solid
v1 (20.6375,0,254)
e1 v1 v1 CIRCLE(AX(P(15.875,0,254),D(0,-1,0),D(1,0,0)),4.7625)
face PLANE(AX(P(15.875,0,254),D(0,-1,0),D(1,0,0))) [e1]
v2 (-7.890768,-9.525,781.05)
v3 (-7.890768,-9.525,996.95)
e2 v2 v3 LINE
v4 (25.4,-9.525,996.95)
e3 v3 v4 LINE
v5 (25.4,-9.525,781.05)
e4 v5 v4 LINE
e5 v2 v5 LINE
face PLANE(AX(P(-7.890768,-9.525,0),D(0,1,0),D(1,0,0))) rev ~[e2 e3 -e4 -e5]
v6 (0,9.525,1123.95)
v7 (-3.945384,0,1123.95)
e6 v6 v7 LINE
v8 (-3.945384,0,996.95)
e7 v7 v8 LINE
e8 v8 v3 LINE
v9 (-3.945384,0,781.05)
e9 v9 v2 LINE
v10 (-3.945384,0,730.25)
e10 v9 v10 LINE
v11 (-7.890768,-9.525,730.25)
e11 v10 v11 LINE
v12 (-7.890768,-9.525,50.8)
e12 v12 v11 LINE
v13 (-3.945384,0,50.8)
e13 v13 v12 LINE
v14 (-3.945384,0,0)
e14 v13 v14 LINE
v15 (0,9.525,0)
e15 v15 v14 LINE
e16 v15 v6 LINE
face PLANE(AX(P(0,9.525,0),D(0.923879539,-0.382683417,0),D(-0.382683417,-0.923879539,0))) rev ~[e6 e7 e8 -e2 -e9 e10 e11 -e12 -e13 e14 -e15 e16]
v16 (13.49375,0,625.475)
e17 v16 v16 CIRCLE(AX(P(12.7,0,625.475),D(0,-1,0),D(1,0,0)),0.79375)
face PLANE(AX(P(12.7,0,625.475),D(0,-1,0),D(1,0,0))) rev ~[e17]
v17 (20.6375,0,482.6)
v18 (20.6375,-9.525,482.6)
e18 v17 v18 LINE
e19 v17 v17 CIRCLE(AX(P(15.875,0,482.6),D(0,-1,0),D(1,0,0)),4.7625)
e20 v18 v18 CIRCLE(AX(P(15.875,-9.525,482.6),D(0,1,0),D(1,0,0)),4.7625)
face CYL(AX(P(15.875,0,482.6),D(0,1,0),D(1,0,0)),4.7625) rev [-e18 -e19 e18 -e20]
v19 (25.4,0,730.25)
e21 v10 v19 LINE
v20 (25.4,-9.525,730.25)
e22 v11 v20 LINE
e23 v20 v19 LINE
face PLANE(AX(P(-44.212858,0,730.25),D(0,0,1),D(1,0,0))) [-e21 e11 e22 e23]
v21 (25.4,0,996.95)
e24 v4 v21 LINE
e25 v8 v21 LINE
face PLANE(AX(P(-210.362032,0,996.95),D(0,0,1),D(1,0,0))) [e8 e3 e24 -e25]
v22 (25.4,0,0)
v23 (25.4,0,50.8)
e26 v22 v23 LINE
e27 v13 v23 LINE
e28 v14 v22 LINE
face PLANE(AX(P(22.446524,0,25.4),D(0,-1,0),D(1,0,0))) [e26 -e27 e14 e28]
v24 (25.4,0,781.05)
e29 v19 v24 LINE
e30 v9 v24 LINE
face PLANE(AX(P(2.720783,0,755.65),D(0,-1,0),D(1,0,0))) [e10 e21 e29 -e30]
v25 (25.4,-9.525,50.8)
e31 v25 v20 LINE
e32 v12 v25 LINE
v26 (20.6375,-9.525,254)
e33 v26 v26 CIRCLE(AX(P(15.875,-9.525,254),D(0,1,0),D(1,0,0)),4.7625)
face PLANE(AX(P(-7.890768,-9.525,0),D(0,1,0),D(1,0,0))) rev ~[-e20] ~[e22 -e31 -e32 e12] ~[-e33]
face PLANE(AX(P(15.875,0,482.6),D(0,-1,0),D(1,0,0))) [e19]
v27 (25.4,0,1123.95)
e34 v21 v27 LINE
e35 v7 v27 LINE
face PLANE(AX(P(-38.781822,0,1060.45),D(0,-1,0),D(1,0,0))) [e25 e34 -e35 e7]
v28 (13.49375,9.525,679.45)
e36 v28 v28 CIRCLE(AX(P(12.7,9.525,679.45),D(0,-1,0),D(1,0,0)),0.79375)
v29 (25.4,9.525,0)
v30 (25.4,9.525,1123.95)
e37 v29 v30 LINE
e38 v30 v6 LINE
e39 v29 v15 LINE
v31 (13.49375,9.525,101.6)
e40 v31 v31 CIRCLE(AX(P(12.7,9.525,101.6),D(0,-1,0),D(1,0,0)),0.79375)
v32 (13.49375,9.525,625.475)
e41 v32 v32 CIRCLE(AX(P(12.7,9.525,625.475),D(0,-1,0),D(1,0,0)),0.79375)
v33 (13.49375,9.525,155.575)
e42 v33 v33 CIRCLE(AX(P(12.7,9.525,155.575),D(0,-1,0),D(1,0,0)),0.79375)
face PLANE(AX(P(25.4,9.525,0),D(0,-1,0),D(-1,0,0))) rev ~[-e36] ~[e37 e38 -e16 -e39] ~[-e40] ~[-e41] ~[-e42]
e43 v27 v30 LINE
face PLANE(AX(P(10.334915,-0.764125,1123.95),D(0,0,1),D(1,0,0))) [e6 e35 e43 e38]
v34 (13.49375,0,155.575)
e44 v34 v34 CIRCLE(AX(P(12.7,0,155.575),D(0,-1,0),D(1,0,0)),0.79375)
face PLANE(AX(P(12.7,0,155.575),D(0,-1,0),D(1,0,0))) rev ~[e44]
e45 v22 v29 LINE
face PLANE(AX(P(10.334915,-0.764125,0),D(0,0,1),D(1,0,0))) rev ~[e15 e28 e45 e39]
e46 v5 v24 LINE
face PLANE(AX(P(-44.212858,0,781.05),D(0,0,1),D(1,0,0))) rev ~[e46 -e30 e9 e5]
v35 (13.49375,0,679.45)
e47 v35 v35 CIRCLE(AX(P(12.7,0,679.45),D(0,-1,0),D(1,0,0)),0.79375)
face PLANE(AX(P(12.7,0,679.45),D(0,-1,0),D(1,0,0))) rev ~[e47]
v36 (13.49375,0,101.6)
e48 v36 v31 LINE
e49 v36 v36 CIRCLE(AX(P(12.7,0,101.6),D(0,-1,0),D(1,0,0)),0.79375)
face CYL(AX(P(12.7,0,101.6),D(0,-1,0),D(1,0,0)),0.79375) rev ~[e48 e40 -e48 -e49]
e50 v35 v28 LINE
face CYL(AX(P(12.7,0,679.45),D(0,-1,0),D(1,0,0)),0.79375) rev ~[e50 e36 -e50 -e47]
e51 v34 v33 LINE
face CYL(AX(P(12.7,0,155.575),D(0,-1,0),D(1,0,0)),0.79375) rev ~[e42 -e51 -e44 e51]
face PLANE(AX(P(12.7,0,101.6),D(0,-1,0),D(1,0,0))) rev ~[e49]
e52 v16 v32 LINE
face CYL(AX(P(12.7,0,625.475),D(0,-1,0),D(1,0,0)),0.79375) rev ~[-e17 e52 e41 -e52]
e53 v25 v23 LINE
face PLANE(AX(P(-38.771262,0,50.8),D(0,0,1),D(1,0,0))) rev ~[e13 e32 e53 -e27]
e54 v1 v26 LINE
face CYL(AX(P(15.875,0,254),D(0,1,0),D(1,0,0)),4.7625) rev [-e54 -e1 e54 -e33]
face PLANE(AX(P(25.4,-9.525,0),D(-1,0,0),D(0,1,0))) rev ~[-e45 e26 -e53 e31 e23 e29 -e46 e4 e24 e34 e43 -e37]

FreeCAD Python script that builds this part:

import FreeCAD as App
import Part
import Sketcher
Q = App.Units.Quantity


def add_polygon(sketch, points):
    """Adds a closed chain of lines whose ends are joined by coincident constraints."""
    first, n = sketch.GeometryCount, len(points)
    for a, b in zip(points, points[1:] + points[:1]):
        sketch.addGeometry(Part.LineSegment(App.Vector(*a, 0), App.Vector(*b, 0)), False)
    for i in range(n):
        sketch.addConstraint(Sketcher.Constraint("Coincident", first + i, 2, first + (i + 1) % n, 1))

doc = App.newDocument("Part")
body = doc.addObject("PartDesign::Body", "Body")

# Sketch on XY plane
sketch1 = body.newObject("Sketcher::SketchObject", "Sketch")
sketch1.AttachmentSupport = (doc.getObject("XY_Plane"), [""])
sketch1.MapMode = "FlatFace"
add_polygon(sketch1, [(25, -10), (25, 10), (0, 10), (-8, -10)])  # lines 0-3
sketch1.addConstraint(Sketcher.Constraint("Vertical", 0))
sketch1.addConstraint(Sketcher.Constraint("Horizontal", 1))
sketch1.addConstraint(Sketcher.Constraint("Horizontal", 3))
sketch1.addConstraint(Sketcher.Constraint("PointOnObject", 1, 2, -2))
sketch1.addConstraint(Sketcher.Constraint("DistanceX", 1, 2, 1, 1, Q("1 in")))
sketch1.addConstraint(Sketcher.Constraint("DistanceY", 0, 1, 0, 2, Q("0.75 in")))
sketch1.addConstraint(Sketcher.Constraint("Angle", 2, Q("-112.499999 deg")))
sketch1.addConstraint(Sketcher.Constraint("DistanceY", -1, 1, 0, 2, Q("0.375 in")))
pad1 = body.newObject("PartDesign::Pad", "Pad")
pad1.Profile = sketch1
pad1.Length = Q("44.25 in")

# Sketch on XZ plane
sketch2 = body.newObject("Sketcher::SketchObject", "Sketch001")
sketch2.AttachmentSupport = (doc.getObject("XZ_Plane"), [""])
sketch2.MapMode = "FlatFace"
add_polygon(sketch2, [(-39, 51), (-39, 0), (84, 0), (84, 51)])  # lines 0-3
add_polygon(sketch2, [(-44, 781), (-44, 730), (50, 730), (50, 781)])  # lines 4-7
add_polygon(sketch2, [(-210, 1124), (-210, 997), (133, 997), (133, 1124)])  # lines 8-11
sketch2.addConstraint(Sketcher.Constraint("Vertical", 0))
sketch2.addConstraint(Sketcher.Constraint("Horizontal", 1))
sketch2.addConstraint(Sketcher.Constraint("Vertical", 2))
sketch2.addConstraint(Sketcher.Constraint("Horizontal", 3))
sketch2.addConstraint(Sketcher.Constraint("Vertical", 4))
sketch2.addConstraint(Sketcher.Constraint("Horizontal", 5))
sketch2.addConstraint(Sketcher.Constraint("Vertical", 6))
sketch2.addConstraint(Sketcher.Constraint("Horizontal", 7))
sketch2.addConstraint(Sketcher.Constraint("Vertical", 8))
sketch2.addConstraint(Sketcher.Constraint("Horizontal", 9))
sketch2.addConstraint(Sketcher.Constraint("Vertical", 10))
sketch2.addConstraint(Sketcher.Constraint("Horizontal", 11))
sketch2.addConstraint(Sketcher.Constraint("PointOnObject", 0, 2, -1))
sketch2.addConstraint(Sketcher.Constraint("Equal", 2, 4))
sketch2.addConstraint(Sketcher.Constraint("DistanceY", 0, 2, 0, 1, Q("2 in")))
sketch2.addConstraint(Sketcher.Constraint("DistanceY", 8, 2, 8, 1, Q("5 in")))
sketch2.addConstraint(Sketcher.Constraint("DistanceY", 7, 2, 8, 2, Q("8.5 in")))
sketch2.addConstraint(Sketcher.Constraint("DistanceY", -1, 1, 4, 2, Q("28.75 in")))
sketch2.addConstraint(Sketcher.Constraint("DistanceX", 5, 1, 5, 2, Q("93.867282 mm")))
sketch2.addConstraint(Sketcher.Constraint("DistanceX", 9, 1, 9, 2, Q("343.160421 mm")))
sketch2.addConstraint(Sketcher.Constraint("DistanceX", 1, 1, 1, 2, Q("122.435573 mm")))
sketch2.addConstraint(Sketcher.Constraint("DistanceX", -1, 1, 1, 2, Q("83.66431 mm")))
sketch2.addConstraint(Sketcher.Constraint("DistanceX", -1, 1, 9, 2, Q("132.798388 mm")))
sketch2.addConstraint(Sketcher.Constraint("DistanceX", 4, 2, 2, 2, Q("127.877168 mm")))
pocket1 = body.newObject("PartDesign::Pocket", "Pocket")
pocket1.Profile = sketch2
pocket1.Length = Q("1 in")
pocket1.Reversed = True

# Sketch on XZ plane
sketch3 = body.newObject("Sketcher::SketchObject", "Sketch002")
sketch3.AttachmentSupport = (doc.getObject("XZ_Plane"), [""])
sketch3.MapMode = "FlatFace"
sketch3.addGeometry(Part.Circle(App.Vector(12.7, 101.6, 0), App.Vector(0, 0, 1), 0.8), False)
sketch3.addGeometry(Part.Circle(App.Vector(12.7, 155.6, 0), App.Vector(0, 0, 1), 0.8), False)
sketch3.addGeometry(Part.Circle(App.Vector(12.7, 625.5, 0), App.Vector(0, 0, 1), 0.8), False)
sketch3.addGeometry(Part.Circle(App.Vector(12.7, 679.5, 0), App.Vector(0, 0, 1), 0.8), False)
sketch3.addGeometry(Part.Circle(App.Vector(-12.7, 625.5, 0), App.Vector(0, 0, 1), 0.8), False)
sketch3.addGeometry(Part.Circle(App.Vector(-12.7, 679.5, 0), App.Vector(0, 0, 1), 0.8), False)
sketch3.addGeometry(Part.Circle(App.Vector(-12.7, 101.6, 0), App.Vector(0, 0, 1), 0.8), False)
sketch3.addGeometry(Part.Circle(App.Vector(-12.7, 155.6, 0), App.Vector(0, 0, 1), 0.8), False)
sketch3.addConstraint(Sketcher.Constraint("Equal", 0, 1))
sketch3.addConstraint(Sketcher.Constraint("Equal", 1, 2))
sketch3.addConstraint(Sketcher.Constraint("Equal", 2, 3))
sketch3.addConstraint(Sketcher.Constraint("Equal", 3, 4))
sketch3.addConstraint(Sketcher.Constraint("Equal", 4, 5))
sketch3.addConstraint(Sketcher.Constraint("Equal", 5, 6))
sketch3.addConstraint(Sketcher.Constraint("Equal", 6, 7))
sketch3.addConstraint(Sketcher.Constraint("Symmetric", 2, 3, 4, 3, -2))
sketch3.addConstraint(Sketcher.Constraint("Symmetric", 3, 3, 5, 3, -2))
sketch3.addConstraint(Sketcher.Constraint("Symmetric", 0, 3, 6, 3, -2))
sketch3.addConstraint(Sketcher.Constraint("Symmetric", 1, 3, 7, 3, -2))
sketch3.addConstraint(Sketcher.Constraint("Vertical", 0, 3, 1, 3))
sketch3.addConstraint(Sketcher.Constraint("Vertical", 1, 3, 2, 3))
sketch3.addConstraint(Sketcher.Constraint("Vertical", 2, 3, 3, 3))
sketch3.addConstraint(Sketcher.Constraint("Diameter", 0, Q("0.0625 in")))
sketch3.addConstraint(Sketcher.Constraint("DistanceY", -1, 1, 0, 3, Q("4 in")))
sketch3.addConstraint(Sketcher.Constraint("DistanceX", 4, 3, 2, 3, Q("1 in")))
sketch3.addConstraint(Sketcher.Constraint("DistanceY", 1, 3, 2, 3, Q("18.5 in")))
sketch3.addConstraint(Sketcher.Constraint("DistanceY", -1, 1, 3, 3, Q("26.75 in")))
sketch3.addConstraint(Sketcher.Constraint("DistanceY", -1, 1, 1, 3, Q("6.125 in")))
pocket2 = body.newObject("PartDesign::Pocket", "Pocket001")
pocket2.Profile = sketch3
pocket2.Length = Q("1 in")

# Sketch on XZ plane
sketch4 = body.newObject("Sketcher::SketchObject", "Sketch003")
sketch4.AttachmentSupport = (doc.getObject("XZ_Plane"), [""])
sketch4.MapMode = "FlatFace"
sketch4.addGeometry(Part.Circle(App.Vector(15.9, 254, 0), App.Vector(0, 0, 1), 4.8), False)
sketch4.addGeometry(Part.Circle(App.Vector(15.9, 482.6, 0), App.Vector(0, 0, 1), 4.8), False)
sketch4.addConstraint(Sketcher.Constraint("Equal", 0, 1))
sketch4.addConstraint(Sketcher.Constraint("Vertical", 0, 3, 1, 3))
sketch4.addConstraint(Sketcher.Constraint("Diameter", 0, Q("0.375 in")))
sketch4.addConstraint(Sketcher.Constraint("DistanceY", -1, 1, 0, 3, Q("10 in")))
sketch4.addConstraint(Sketcher.Constraint("DistanceY", -1, 1, 1, 3, Q("19 in")))
sketch4.addConstraint(Sketcher.Constraint("DistanceX", -1, 1, 0, 3, Q("0.625 in")))
pocket3 = body.newObject("PartDesign::Pocket", "Pocket002")
pocket3.Profile = sketch4
pocket3.Length = Q("1 in")
pocket3.Reversed = True

doc.recompute()
